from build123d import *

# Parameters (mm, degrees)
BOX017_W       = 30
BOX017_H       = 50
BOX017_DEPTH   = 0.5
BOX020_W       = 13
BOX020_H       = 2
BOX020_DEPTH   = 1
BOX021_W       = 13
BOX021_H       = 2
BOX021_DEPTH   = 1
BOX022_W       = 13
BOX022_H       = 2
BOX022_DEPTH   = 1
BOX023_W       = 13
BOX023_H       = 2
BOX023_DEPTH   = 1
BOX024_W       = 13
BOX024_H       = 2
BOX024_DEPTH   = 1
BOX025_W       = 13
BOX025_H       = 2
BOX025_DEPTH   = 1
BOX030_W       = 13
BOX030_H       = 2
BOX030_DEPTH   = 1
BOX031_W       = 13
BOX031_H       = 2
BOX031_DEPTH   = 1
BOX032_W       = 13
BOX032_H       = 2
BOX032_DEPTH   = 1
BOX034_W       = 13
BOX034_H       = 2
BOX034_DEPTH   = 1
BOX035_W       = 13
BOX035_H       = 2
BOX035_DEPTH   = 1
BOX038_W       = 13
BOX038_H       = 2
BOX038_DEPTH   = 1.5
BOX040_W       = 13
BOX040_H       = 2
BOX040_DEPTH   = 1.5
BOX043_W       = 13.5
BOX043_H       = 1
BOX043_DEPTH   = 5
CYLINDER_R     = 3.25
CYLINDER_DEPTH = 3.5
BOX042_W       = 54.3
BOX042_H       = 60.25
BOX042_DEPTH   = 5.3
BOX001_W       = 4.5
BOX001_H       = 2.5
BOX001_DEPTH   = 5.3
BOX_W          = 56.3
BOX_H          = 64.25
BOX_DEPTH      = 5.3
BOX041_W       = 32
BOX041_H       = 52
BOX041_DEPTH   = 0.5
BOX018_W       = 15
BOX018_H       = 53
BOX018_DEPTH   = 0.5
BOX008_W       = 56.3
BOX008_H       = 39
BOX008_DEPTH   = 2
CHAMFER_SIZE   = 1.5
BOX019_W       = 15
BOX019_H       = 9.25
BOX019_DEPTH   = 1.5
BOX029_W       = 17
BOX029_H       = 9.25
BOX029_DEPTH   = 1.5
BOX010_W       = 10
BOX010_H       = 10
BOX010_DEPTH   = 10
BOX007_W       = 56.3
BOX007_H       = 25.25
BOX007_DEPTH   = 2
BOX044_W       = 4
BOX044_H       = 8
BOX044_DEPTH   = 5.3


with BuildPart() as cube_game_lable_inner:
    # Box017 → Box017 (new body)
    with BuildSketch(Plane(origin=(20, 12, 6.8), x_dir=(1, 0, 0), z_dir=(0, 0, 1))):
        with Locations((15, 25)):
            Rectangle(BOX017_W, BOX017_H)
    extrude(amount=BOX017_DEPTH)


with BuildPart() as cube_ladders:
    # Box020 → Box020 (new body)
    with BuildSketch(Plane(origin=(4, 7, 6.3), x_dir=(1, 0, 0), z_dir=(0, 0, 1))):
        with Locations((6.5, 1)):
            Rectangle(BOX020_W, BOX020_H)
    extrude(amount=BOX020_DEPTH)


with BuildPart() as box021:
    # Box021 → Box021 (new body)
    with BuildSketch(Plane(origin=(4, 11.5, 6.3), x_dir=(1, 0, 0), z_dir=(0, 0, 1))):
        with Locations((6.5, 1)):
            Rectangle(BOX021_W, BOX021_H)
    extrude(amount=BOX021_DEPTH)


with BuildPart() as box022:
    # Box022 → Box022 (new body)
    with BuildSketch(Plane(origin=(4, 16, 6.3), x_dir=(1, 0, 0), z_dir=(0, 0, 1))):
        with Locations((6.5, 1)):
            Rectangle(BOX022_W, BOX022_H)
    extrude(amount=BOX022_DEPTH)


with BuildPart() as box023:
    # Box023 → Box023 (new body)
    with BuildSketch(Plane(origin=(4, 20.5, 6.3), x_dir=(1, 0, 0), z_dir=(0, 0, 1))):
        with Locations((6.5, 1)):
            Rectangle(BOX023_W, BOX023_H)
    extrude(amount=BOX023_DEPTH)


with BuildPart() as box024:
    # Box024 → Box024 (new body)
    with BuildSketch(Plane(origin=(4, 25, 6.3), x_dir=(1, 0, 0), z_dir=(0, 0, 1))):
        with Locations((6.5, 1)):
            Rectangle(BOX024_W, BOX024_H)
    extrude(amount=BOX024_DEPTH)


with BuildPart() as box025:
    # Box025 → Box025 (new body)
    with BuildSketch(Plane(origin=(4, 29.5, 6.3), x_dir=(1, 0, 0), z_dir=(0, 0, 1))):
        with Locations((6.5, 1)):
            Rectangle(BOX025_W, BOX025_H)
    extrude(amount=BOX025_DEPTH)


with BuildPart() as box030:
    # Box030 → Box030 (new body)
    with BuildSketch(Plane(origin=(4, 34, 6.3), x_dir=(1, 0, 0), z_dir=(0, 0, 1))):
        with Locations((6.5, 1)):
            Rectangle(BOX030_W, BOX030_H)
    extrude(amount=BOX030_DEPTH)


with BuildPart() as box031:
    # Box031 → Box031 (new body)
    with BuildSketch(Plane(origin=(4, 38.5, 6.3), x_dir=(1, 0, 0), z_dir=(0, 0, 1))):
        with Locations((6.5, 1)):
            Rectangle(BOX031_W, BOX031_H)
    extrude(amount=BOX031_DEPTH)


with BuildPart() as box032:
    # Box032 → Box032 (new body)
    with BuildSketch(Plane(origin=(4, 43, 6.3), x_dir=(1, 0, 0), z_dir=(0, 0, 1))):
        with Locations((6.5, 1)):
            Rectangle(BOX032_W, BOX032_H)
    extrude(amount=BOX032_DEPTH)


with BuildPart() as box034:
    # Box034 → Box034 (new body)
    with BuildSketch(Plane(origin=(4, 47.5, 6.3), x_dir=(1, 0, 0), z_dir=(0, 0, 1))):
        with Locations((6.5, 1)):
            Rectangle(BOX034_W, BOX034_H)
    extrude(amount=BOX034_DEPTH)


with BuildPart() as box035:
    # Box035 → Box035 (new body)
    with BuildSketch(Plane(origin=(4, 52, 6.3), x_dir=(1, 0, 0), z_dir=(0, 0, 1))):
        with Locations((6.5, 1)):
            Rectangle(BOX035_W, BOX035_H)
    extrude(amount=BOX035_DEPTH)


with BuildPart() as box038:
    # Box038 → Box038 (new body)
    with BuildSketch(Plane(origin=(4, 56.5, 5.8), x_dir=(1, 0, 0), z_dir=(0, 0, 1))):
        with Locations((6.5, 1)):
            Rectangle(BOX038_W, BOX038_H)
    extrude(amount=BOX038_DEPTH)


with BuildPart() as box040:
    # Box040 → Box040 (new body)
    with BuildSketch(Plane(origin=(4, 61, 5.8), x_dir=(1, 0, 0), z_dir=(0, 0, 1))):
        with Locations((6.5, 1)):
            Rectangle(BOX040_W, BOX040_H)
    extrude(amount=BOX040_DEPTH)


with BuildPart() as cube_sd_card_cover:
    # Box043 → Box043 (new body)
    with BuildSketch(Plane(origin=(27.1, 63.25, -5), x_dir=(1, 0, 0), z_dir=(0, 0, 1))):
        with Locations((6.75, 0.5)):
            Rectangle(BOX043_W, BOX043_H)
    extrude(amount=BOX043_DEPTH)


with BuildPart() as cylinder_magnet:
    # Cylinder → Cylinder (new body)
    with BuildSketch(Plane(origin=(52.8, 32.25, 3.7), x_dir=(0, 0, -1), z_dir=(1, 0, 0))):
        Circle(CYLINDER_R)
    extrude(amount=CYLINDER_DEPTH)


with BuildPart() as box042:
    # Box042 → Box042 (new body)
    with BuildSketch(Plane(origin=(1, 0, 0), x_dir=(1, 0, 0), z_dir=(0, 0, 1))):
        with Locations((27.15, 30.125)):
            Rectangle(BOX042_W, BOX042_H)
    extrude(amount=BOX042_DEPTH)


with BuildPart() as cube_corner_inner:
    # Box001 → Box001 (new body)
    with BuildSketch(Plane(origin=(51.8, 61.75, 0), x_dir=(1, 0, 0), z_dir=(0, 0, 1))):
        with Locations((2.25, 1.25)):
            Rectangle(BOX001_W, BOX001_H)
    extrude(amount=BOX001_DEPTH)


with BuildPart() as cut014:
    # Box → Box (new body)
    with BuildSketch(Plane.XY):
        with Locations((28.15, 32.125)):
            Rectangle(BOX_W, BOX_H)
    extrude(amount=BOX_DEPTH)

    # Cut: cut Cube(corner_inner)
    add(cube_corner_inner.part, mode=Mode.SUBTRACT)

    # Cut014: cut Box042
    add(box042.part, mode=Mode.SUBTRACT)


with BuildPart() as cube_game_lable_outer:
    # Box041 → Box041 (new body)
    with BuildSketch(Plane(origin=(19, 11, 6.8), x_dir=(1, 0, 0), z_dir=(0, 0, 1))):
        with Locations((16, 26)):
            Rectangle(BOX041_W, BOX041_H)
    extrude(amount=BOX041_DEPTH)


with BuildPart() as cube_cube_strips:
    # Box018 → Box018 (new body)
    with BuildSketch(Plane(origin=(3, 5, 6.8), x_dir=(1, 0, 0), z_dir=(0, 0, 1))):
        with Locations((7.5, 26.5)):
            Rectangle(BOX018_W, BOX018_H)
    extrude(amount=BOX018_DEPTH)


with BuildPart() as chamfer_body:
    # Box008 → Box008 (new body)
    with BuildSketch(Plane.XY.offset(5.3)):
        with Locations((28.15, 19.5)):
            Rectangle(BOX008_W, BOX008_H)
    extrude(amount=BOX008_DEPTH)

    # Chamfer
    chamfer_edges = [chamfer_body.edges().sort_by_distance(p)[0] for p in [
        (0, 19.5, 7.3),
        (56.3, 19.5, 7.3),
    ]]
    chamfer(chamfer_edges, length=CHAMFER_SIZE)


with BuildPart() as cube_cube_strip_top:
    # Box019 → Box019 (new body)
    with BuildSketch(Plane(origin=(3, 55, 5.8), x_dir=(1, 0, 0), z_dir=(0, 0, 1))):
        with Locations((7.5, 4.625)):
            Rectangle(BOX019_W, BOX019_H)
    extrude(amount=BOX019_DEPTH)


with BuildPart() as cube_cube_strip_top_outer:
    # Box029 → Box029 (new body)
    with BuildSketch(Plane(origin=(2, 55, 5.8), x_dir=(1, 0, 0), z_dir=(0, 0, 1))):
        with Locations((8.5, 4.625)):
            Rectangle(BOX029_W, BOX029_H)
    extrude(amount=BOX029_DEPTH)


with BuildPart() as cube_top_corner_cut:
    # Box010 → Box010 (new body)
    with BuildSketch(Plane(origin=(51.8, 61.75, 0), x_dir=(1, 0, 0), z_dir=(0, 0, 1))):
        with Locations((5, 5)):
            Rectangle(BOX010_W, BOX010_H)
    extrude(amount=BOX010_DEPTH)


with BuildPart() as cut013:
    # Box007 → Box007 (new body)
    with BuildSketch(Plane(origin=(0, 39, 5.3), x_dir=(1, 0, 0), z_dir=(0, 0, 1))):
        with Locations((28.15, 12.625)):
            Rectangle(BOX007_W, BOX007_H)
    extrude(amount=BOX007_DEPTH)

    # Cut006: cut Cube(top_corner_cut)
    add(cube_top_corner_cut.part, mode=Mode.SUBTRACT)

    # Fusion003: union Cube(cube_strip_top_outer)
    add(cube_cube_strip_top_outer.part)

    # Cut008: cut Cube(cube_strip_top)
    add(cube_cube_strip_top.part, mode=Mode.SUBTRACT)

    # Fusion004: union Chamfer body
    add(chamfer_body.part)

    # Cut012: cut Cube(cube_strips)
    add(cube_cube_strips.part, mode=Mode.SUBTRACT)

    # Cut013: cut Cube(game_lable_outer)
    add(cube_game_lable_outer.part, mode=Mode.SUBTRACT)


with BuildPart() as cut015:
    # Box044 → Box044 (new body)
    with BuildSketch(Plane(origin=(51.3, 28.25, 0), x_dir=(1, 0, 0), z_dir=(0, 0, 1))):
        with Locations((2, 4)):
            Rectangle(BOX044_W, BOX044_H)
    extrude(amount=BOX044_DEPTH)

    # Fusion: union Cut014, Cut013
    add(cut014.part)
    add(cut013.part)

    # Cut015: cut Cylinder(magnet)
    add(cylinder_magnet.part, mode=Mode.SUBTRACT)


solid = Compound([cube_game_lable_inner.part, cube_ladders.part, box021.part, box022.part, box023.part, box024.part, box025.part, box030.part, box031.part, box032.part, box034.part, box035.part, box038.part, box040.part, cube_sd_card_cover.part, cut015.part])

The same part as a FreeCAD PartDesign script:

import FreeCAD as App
import Part
import Sketcher
from FreeCAD import Vector


def edges_at(feature, points):
    """Names of the edges that pass closest to the given points."""
    edges = feature.Shape.Edges
    near = lambda p: min(range(len(edges)), key=lambda i: edges[i].distToShape(Part.Vertex(*p))[0])
    return sorted({f"Edge{near(p) + 1}" for p in points})

doc = App.newDocument("Part")
body = doc.addObject("PartDesign::Body", "Body")

sketch1 = doc.addObject("Sketcher::SketchObject", "Sketch")
body.addObject(sketch1)
sketch1.AttachmentSupport = (doc.XY_Plane, [""])
sketch1.MapMode = "FlatFace"
sketch1.AttachmentOffset = App.Placement(Vector(0, 0, 6.8), App.Rotation())
sketch1.addGeometry([
    Part.LineSegment(Vector(20, 62, 0), Vector(20, 12, 0)),
    Part.LineSegment(Vector(20, 12, 0), Vector(50, 12, 0)),
    Part.LineSegment(Vector(50, 12, 0), Vector(50, 62, 0)),
    Part.LineSegment(Vector(50, 62, 0), Vector(20, 62, 0)),
], False)
sketch1.addConstraint([
    Sketcher.Constraint("Coincident", 0, 2, 1, 1),
    Sketcher.Constraint("Coincident", 1, 2, 2, 1),
    Sketcher.Constraint("Coincident", 2, 2, 3, 1),
    Sketcher.Constraint("Coincident", 3, 2, 0, 1),
    Sketcher.Constraint("Vertical", 0),
    Sketcher.Constraint("Horizontal", 1),
    Sketcher.Constraint("Vertical", 2),
    Sketcher.Constraint("Horizontal", 3),
    Sketcher.Constraint("DistanceX", 1, 1, 1, 2, 30.0),
    Sketcher.Constraint("DistanceY", 0, 2, 0, 1, 50.0),
    Sketcher.Constraint("DistanceX", -1, 1, 0, 2, 20.0),
    Sketcher.Constraint("DistanceY", -1, 1, 0, 2, 12.0),
])
pad1 = doc.addObject("PartDesign::Pad", "Pad")
body.addObject(pad1)
pad1.Profile = sketch1
pad1.Length = 0.5
body2 = doc.addObject("PartDesign::Body", "Body001")

sketch2 = doc.addObject("Sketcher::SketchObject", "Sketch001")
body2.addObject(sketch2)
sketch2.AttachmentSupport = (doc.getObject("XY_Plane001"), [""])
sketch2.MapMode = "FlatFace"
sketch2.AttachmentOffset = App.Placement(Vector(0, 0, 6.3), App.Rotation())
sketch2.addGeometry([
    Part.LineSegment(Vector(4, 9, 0), Vector(4, 7, 0)),
    Part.LineSegment(Vector(4, 7, 0), Vector(17, 7, 0)),
    Part.LineSegment(Vector(17, 7, 0), Vector(17, 9, 0)),
    Part.LineSegment(Vector(17, 9, 0), Vector(4, 9, 0)),
], False)
sketch2.addConstraint([
    Sketcher.Constraint("Coincident", 0, 2, 1, 1),
    Sketcher.Constraint("Coincident", 1, 2, 2, 1),
    Sketcher.Constraint("Coincident", 2, 2, 3, 1),
    Sketcher.Constraint("Coincident", 3, 2, 0, 1),
    Sketcher.Constraint("Vertical", 0),
    Sketcher.Constraint("Horizontal", 1),
    Sketcher.Constraint("Vertical", 2),
    Sketcher.Constraint("Horizontal", 3),
    Sketcher.Constraint("DistanceX", 1, 1, 1, 2, 13.0),
    Sketcher.Constraint("DistanceY", 0, 2, 0, 1, 2.0),
    Sketcher.Constraint("DistanceX", -1, 1, 0, 2, 4.0),
    Sketcher.Constraint("DistanceY", -1, 1, 0, 2, 7.0),
])
pad2 = doc.addObject("PartDesign::Pad", "Pad001")
body2.addObject(pad2)
pad2.Profile = sketch2
pad2.Length = 1
body3 = doc.addObject("PartDesign::Body", "Body002")

sketch3 = doc.addObject("Sketcher::SketchObject", "Sketch002")
body3.addObject(sketch3)
sketch3.AttachmentSupport = (doc.getObject("XY_Plane002"), [""])
sketch3.MapMode = "FlatFace"
sketch3.AttachmentOffset = App.Placement(Vector(0, 0, 6.3), App.Rotation())
sketch3.addGeometry([
    Part.LineSegment(Vector(4, 13.5, 0), Vector(4, 11.5, 0)),
    Part.LineSegment(Vector(4, 11.5, 0), Vector(17, 11.5, 0)),
    Part.LineSegment(Vector(17, 11.5, 0), Vector(17, 13.5, 0)),
    Part.LineSegment(Vector(17, 13.5, 0), Vector(4, 13.5, 0)),
], False)
sketch3.addConstraint([
    Sketcher.Constraint("Coincident", 0, 2, 1, 1),
    Sketcher.Constraint("Coincident", 1, 2, 2, 1),
    Sketcher.Constraint("Coincident", 2, 2, 3, 1),
    Sketcher.Constraint("Coincident", 3, 2, 0, 1),
    Sketcher.Constraint("Vertical", 0),
    Sketcher.Constraint("Horizontal", 1),
    Sketcher.Constraint("Vertical", 2),
    Sketcher.Constraint("Horizontal", 3),
    Sketcher.Constraint("DistanceX", 1, 1, 1, 2, 13.0),
    Sketcher.Constraint("DistanceY", 0, 2, 0, 1, 2.0),
    Sketcher.Constraint("DistanceX", -1, 1, 0, 2, 4.0),
    Sketcher.Constraint("DistanceY", -1, 1, 0, 2, 11.5),
])
pad3 = doc.addObject("PartDesign::Pad", "Pad002")
body3.addObject(pad3)
pad3.Profile = sketch3
pad3.Length = 1
body4 = doc.addObject("PartDesign::Body", "Body003")

sketch4 = doc.addObject("Sketcher::SketchObject", "Sketch003")
body4.addObject(sketch4)
sketch4.AttachmentSupport = (doc.getObject("XY_Plane003"), [""])
sketch4.MapMode = "FlatFace"
sketch4.AttachmentOffset = App.Placement(Vector(0, 0, 6.3), App.Rotation())
sketch4.addGeometry([
    Part.LineSegment(Vector(4, 18, 0), Vector(4, 16, 0)),
    Part.LineSegment(Vector(4, 16, 0), Vector(17, 16, 0)),
    Part.LineSegment(Vector(17, 16, 0), Vector(17, 18, 0)),
    Part.LineSegment(Vector(17, 18, 0), Vector(4, 18, 0)),
], False)
sketch4.addConstraint([
    Sketcher.Constraint("Coincident", 0, 2, 1, 1),
    Sketcher.Constraint("Coincident", 1, 2, 2, 1),
    Sketcher.Constraint("Coincident", 2, 2, 3, 1),
    Sketcher.Constraint("Coincident", 3, 2, 0, 1),
    Sketcher.Constraint("Vertical", 0),
    Sketcher.Constraint("Horizontal", 1),
    Sketcher.Constraint("Vertical", 2),
    Sketcher.Constraint("Horizontal", 3),
    Sketcher.Constraint("DistanceX", 1, 1, 1, 2, 13.0),
    Sketcher.Constraint("DistanceY", 0, 2, 0, 1, 2.0),
    Sketcher.Constraint("DistanceX", -1, 1, 0, 2, 4.0),
    Sketcher.Constraint("DistanceY", -1, 1, 0, 2, 16.0),
])
pad4 = doc.addObject("PartDesign::Pad", "Pad003")
body4.addObject(pad4)
pad4.Profile = sketch4
pad4.Length = 1
body5 = doc.addObject("PartDesign::Body", "Body004")

sketch5 = doc.addObject("Sketcher::SketchObject", "Sketch004")
body5.addObject(sketch5)
sketch5.AttachmentSupport = (doc.getObject("XY_Plane004"), [""])
sketch5.MapMode = "FlatFace"
sketch5.AttachmentOffset = App.Placement(Vector(0, 0, 6.3), App.Rotation())
sketch5.addGeometry([
    Part.LineSegment(Vector(4, 22.5, 0), Vector(4, 20.5, 0)),
    Part.LineSegment(Vector(4, 20.5, 0), Vector(17, 20.5, 0)),
    Part.LineSegment(Vector(17, 20.5, 0), Vector(17, 22.5, 0)),
    Part.LineSegment(Vector(17, 22.5, 0), Vector(4, 22.5, 0)),
], False)
sketch5.addConstraint([
    Sketcher.Constraint("Coincident", 0, 2, 1, 1),
    Sketcher.Constraint("Coincident", 1, 2, 2, 1),
    Sketcher.Constraint("Coincident", 2, 2, 3, 1),
    Sketcher.Constraint("Coincident", 3, 2, 0, 1),
    Sketcher.Constraint("Vertical", 0),
    Sketcher.Constraint("Horizontal", 1),
    Sketcher.Constraint("Vertical", 2),
    Sketcher.Constraint("Horizontal", 3),
    Sketcher.Constraint("DistanceX", 1, 1, 1, 2, 13.0),
    Sketcher.Constraint("DistanceY", 0, 2, 0, 1, 2.0),
    Sketcher.Constraint("DistanceX", -1, 1, 0, 2, 4.0),
    Sketcher.Constraint("DistanceY", -1, 1, 0, 2, 20.5),
])
pad5 = doc.addObject("PartDesign::Pad", "Pad004")
body5.addObject(pad5)
pad5.Profile = sketch5
pad5.Length = 1
body6 = doc.addObject("PartDesign::Body", "Body005")

sketch6 = doc.addObject("Sketcher::SketchObject", "Sketch005")
body6.addObject(sketch6)
sketch6.AttachmentSupport = (doc.getObject("XY_Plane005"), [""])
sketch6.MapMode = "FlatFace"
sketch6.AttachmentOffset = App.Placement(Vector(0, 0, 6.3), App.Rotation())
sketch6.addGeometry([
    Part.LineSegment(Vector(4, 27, 0), Vector(4, 25, 0)),
    Part.LineSegment(Vector(4, 25, 0), Vector(17, 25, 0)),
    Part.LineSegment(Vector(17, 25, 0), Vector(17, 27, 0)),
    Part.LineSegment(Vector(17, 27, 0), Vector(4, 27, 0)),
], False)
sketch6.addConstraint([
    Sketcher.Constraint("Coincident", 0, 2, 1, 1),
    Sketcher.Constraint("Coincident", 1, 2, 2, 1),
    Sketcher.Constraint("Coincident", 2, 2, 3, 1),
    Sketcher.Constraint("Coincident", 3, 2, 0, 1),
    Sketcher.Constraint("Vertical", 0),
    Sketcher.Constraint("Horizontal", 1),
    Sketcher.Constraint("Vertical", 2),
    Sketcher.Constraint("Horizontal", 3),
    Sketcher.Constraint("DistanceX", 1, 1, 1, 2, 13.0),
    Sketcher.Constraint("DistanceY", 0, 2, 0, 1, 2.0),
    Sketcher.Constraint("DistanceX", -1, 1, 0, 2, 4.0),
    Sketcher.Constraint("DistanceY", -1, 1, 0, 2, 25.0),
])
pad6 = doc.addObject("PartDesign::Pad", "Pad005")
body6.addObject(pad6)
pad6.Profile = sketch6
pad6.Length = 1
body7 = doc.addObject("PartDesign::Body", "Body006")

sketch7 = doc.addObject("Sketcher::SketchObject", "Sketch006")
body7.addObject(sketch7)
sketch7.AttachmentSupport = (doc.getObject("XY_Plane006"), [""])
sketch7.MapMode = "FlatFace"
sketch7.AttachmentOffset = App.Placement(Vector(0, 0, 6.3), App.Rotation())
sketch7.addGeometry([
    Part.LineSegment(Vector(4, 31.5, 0), Vector(4, 29.5, 0)),
    Part.LineSegment(Vector(4, 29.5, 0), Vector(17, 29.5, 0)),
    Part.LineSegment(Vector(17, 29.5, 0), Vector(17, 31.5, 0)),
    Part.LineSegment(Vector(17, 31.5, 0), Vector(4, 31.5, 0)),
], False)
sketch7.addConstraint([
    Sketcher.Constraint("Coincident", 0, 2, 1, 1),
    Sketcher.Constraint("Coincident", 1, 2, 2, 1),
    Sketcher.Constraint("Coincident", 2, 2, 3, 1),
    Sketcher.Constraint("Coincident", 3, 2, 0, 1),
    Sketcher.Constraint("Vertical", 0),
    Sketcher.Constraint("Horizontal", 1),
    Sketcher.Constraint("Vertical", 2),
    Sketcher.Constraint("Horizontal", 3),
    Sketcher.Constraint("DistanceX", 1, 1, 1, 2, 13.0),
    Sketcher.Constraint("DistanceY", 0, 2, 0, 1, 2.0),
    Sketcher.Constraint("DistanceX", -1, 1, 0, 2, 4.0),
    Sketcher.Constraint("DistanceY", -1, 1, 0, 2, 29.5),
])
pad7 = doc.addObject("PartDesign::Pad", "Pad006")
body7.addObject(pad7)
pad7.Profile = sketch7
pad7.Length = 1
body8 = doc.addObject("PartDesign::Body", "Body007")

sketch8 = doc.addObject("Sketcher::SketchObject", "Sketch007")
body8.addObject(sketch8)
sketch8.AttachmentSupport = (doc.getObject("XY_Plane007"), [""])
sketch8.MapMode = "FlatFace"
sketch8.AttachmentOffset = App.Placement(Vector(0, 0, 6.3), App.Rotation())
sketch8.addGeometry([
    Part.LineSegment(Vector(4, 36, 0), Vector(4, 34, 0)),
    Part.LineSegment(Vector(4, 34, 0), Vector(17, 34, 0)),
    Part.LineSegment(Vector(17, 34, 0), Vector(17, 36, 0)),
    Part.LineSegment(Vector(17, 36, 0), Vector(4, 36, 0)),
], False)
sketch8.addConstraint([
    Sketcher.Constraint("Coincident", 0, 2, 1, 1),
    Sketcher.Constraint("Coincident", 1, 2, 2, 1),
    Sketcher.Constraint("Coincident", 2, 2, 3, 1),
    Sketcher.Constraint("Coincident", 3, 2, 0, 1),
    Sketcher.Constraint("Vertical", 0),
    Sketcher.Constraint("Horizontal", 1),
    Sketcher.Constraint("Vertical", 2),
    Sketcher.Constraint("Horizontal", 3),
    Sketcher.Constraint("DistanceX", 1, 1, 1, 2, 13.0),
    Sketcher.Constraint("DistanceY", 0, 2, 0, 1, 2.0),
    Sketcher.Constraint("DistanceX", -1, 1, 0, 2, 4.0),
    Sketcher.Constraint("DistanceY", -1, 1, 0, 2, 34.0),
])
pad8 = doc.addObject("PartDesign::Pad", "Pad007")
body8.addObject(pad8)
pad8.Profile = sketch8
pad8.Length = 1
body9 = doc.addObject("PartDesign::Body", "Body008")

sketch9 = doc.addObject("Sketcher::SketchObject", "Sketch008")
body9.addObject(sketch9)
sketch9.AttachmentSupport = (doc.getObject("XY_Plane008"), [""])
sketch9.MapMode = "FlatFace"
sketch9.AttachmentOffset = App.Placement(Vector(0, 0, 6.3), App.Rotation())
sketch9.addGeometry([
    Part.LineSegment(Vector(4, 40.5, 0), Vector(4, 38.5, 0)),
    Part.LineSegment(Vector(4, 38.5, 0), Vector(17, 38.5, 0)),
    Part.LineSegment(Vector(17, 38.5, 0), Vector(17, 40.5, 0)),
    Part.LineSegment(Vector(17, 40.5, 0), Vector(4, 40.5, 0)),
], False)
sketch9.addConstraint([
    Sketcher.Constraint("Coincident", 0, 2, 1, 1),
    Sketcher.Constraint("Coincident", 1, 2, 2, 1),
    Sketcher.Constraint("Coincident", 2, 2, 3, 1),
    Sketcher.Constraint("Coincident", 3, 2, 0, 1),
    Sketcher.Constraint("Vertical", 0),
    Sketcher.Constraint("Horizontal", 1),
    Sketcher.Constraint("Vertical", 2),
    Sketcher.Constraint("Horizontal", 3),
    Sketcher.Constraint("DistanceX", 1, 1, 1, 2, 13.0),
    Sketcher.Constraint("DistanceY", 0, 2, 0, 1, 2.0),
    Sketcher.Constraint("DistanceX", -1, 1, 0, 2, 4.0),
    Sketcher.Constraint("DistanceY", -1, 1, 0, 2, 38.5),
])
pad9 = doc.addObject("PartDesign::Pad", "Pad008")
body9.addObject(pad9)
pad9.Profile = sketch9
pad9.Length = 1
body10 = doc.addObject("PartDesign::Body", "Body009")

sketch10 = doc.addObject("Sketcher::SketchObject", "Sketch009")
body10.addObject(sketch10)
sketch10.AttachmentSupport = (doc.getObject("XY_Plane009"), [""])
sketch10.MapMode = "FlatFace"
sketch10.AttachmentOffset = App.Placement(Vector(0, 0, 6.3), App.Rotation())
sketch10.addGeometry([
    Part.LineSegment(Vector(4, 45, 0), Vector(4, 43, 0)),
    Part.LineSegment(Vector(4, 43, 0), Vector(17, 43, 0)),
    Part.LineSegment(Vector(17, 43, 0), Vector(17, 45, 0)),
    Part.LineSegment(Vector(17, 45, 0), Vector(4, 45, 0)),
], False)
sketch10.addConstraint([
    Sketcher.Constraint("Coincident", 0, 2, 1, 1),
    Sketcher.Constraint("Coincident", 1, 2, 2, 1),
    Sketcher.Constraint("Coincident", 2, 2, 3, 1),
    Sketcher.Constraint("Coincident", 3, 2, 0, 1),
    Sketcher.Constraint("Vertical", 0),
    Sketcher.Constraint("Horizontal", 1),
    Sketcher.Constraint("Vertical", 2),
    Sketcher.Constraint("Horizontal", 3),
    Sketcher.Constraint("DistanceX", 1, 1, 1, 2, 13.0),
    Sketcher.Constraint("DistanceY", 0, 2, 0, 1, 2.0),
    Sketcher.Constraint("DistanceX", -1, 1, 0, 2, 4.0),
    Sketcher.Constraint("DistanceY", -1, 1, 0, 2, 43.0),
])
pad10 = doc.addObject("PartDesign::Pad", "Pad009")
body10.addObject(pad10)
pad10.Profile = sketch10
pad10.Length = 1
body11 = doc.addObject("PartDesign::Body", "Body010")

sketch11 = doc.addObject("Sketcher::SketchObject", "Sketch010")
body11.addObject(sketch11)
sketch11.AttachmentSupport = (doc.getObject("XY_Plane010"), [""])
sketch11.MapMode = "FlatFace"
sketch11.AttachmentOffset = App.Placement(Vector(0, 0, 6.3), App.Rotation())
sketch11.addGeometry([
    Part.LineSegment(Vector(4, 49.5, 0), Vector(4, 47.5, 0)),
    Part.LineSegment(Vector(4, 47.5, 0), Vector(17, 47.5, 0)),
    Part.LineSegment(Vector(17, 47.5, 0), Vector(17, 49.5, 0)),
    Part.LineSegment(Vector(17, 49.5, 0), Vector(4, 49.5, 0)),
], False)
sketch11.addConstraint([
    Sketcher.Constraint("Coincident", 0, 2, 1, 1),
    Sketcher.Constraint("Coincident", 1, 2, 2, 1),
    Sketcher.Constraint("Coincident", 2, 2, 3, 1),
    Sketcher.Constraint("Coincident", 3, 2, 0, 1),
    Sketcher.Constraint("Vertical", 0),
    Sketcher.Constraint("Horizontal", 1),
    Sketcher.Constraint("Vertical", 2),
    Sketcher.Constraint("Horizontal", 3),
    Sketcher.Constraint("DistanceX", 1, 1, 1, 2, 13.0),
    Sketcher.Constraint("DistanceY", 0, 2, 0, 1, 2.0),
    Sketcher.Constraint("DistanceX", -1, 1, 0, 2, 4.0),
    Sketcher.Constraint("DistanceY", -1, 1, 0, 2, 47.5),
])
pad11 = doc.addObject("PartDesign::Pad", "Pad010")
body11.addObject(pad11)
pad11.Profile = sketch11
pad11.Length = 1
body12 = doc.addObject("PartDesign::Body", "Body011")

sketch12 = doc.addObject("Sketcher::SketchObject", "Sketch011")
body12.addObject(sketch12)
sketch12.AttachmentSupport = (doc.getObject("XY_Plane011"), [""])
sketch12.MapMode = "FlatFace"
sketch12.AttachmentOffset = App.Placement(Vector(0, 0, 6.3), App.Rotation())
sketch12.addGeometry([
    Part.LineSegment(Vector(4, 54, 0), Vector(4, 52, 0)),
    Part.LineSegment(Vector(4, 52, 0), Vector(17, 52, 0)),
    Part.LineSegment(Vector(17, 52, 0), Vector(17, 54, 0)),
    Part.LineSegment(Vector(17, 54, 0), Vector(4, 54, 0)),
], False)
sketch12.addConstraint([
    Sketcher.Constraint("Coincident", 0, 2, 1, 1),
    Sketcher.Constraint("Coincident", 1, 2, 2, 1),
    Sketcher.Constraint("Coincident", 2, 2, 3, 1),
    Sketcher.Constraint("Coincident", 3, 2, 0, 1),
    Sketcher.Constraint("Vertical", 0),
    Sketcher.Constraint("Horizontal", 1),
    Sketcher.Constraint("Vertical", 2),
    Sketcher.Constraint("Horizontal", 3),
    Sketcher.Constraint("DistanceX", 1, 1, 1, 2, 13.0),
    Sketcher.Constraint("DistanceY", 0, 2, 0, 1, 2.0),
    Sketcher.Constraint("DistanceX", -1, 1, 0, 2, 4.0),
    Sketcher.Constraint("DistanceY", -1, 1, 0, 2, 52.0),
])
pad12 = doc.addObject("PartDesign::Pad", "Pad011")
body12.addObject(pad12)
pad12.Profile = sketch12
pad12.Length = 1
body13 = doc.addObject("PartDesign::Body", "Body012")

sketch13 = doc.addObject("Sketcher::SketchObject", "Sketch012")
body13.addObject(sketch13)
sketch13.AttachmentSupport = (doc.getObject("XY_Plane012"), [""])
sketch13.MapMode = "FlatFace"
sketch13.AttachmentOffset = App.Placement(Vector(0, 0, 5.8), App.Rotation())
sketch13.addGeometry([
    Part.LineSegment(Vector(4, 58.5, 0), Vector(4, 56.5, 0)),
    Part.LineSegment(Vector(4, 56.5, 0), Vector(17, 56.5, 0)),
    Part.LineSegment(Vector(17, 56.5, 0), Vector(17, 58.5, 0)),
    Part.LineSegment(Vector(17, 58.5, 0), Vector(4, 58.5, 0)),
], False)
sketch13.addConstraint([
    Sketcher.Constraint("Coincident", 0, 2, 1, 1),
    Sketcher.Constraint("Coincident", 1, 2, 2, 1),
    Sketcher.Constraint("Coincident", 2, 2, 3, 1),
    Sketcher.Constraint("Coincident", 3, 2, 0, 1),
    Sketcher.Constraint("Vertical", 0),
    Sketcher.Constraint("Horizontal", 1),
    Sketcher.Constraint("Vertical", 2),
    Sketcher.Constraint("Horizontal", 3),
    Sketcher.Constraint("DistanceX", 1, 1, 1, 2, 13.0),
    Sketcher.Constraint("DistanceY", 0, 2, 0, 1, 2.0),
    Sketcher.Constraint("DistanceX", -1, 1, 0, 2, 4.0),
    Sketcher.Constraint("DistanceY", -1, 1, 0, 2, 56.5),
])
pad13 = doc.addObject("PartDesign::Pad", "Pad012")
body13.addObject(pad13)
pad13.Profile = sketch13
pad13.Length = 1.5
body14 = doc.addObject("PartDesign::Body", "Body013")

sketch14 = doc.addObject("Sketcher::SketchObject", "Sketch013")
body14.addObject(sketch14)
sketch14.AttachmentSupport = (doc.getObject("XY_Plane013"), [""])
sketch14.MapMode = "FlatFace"
sketch14.AttachmentOffset = App.Placement(Vector(0, 0, 5.8), App.Rotation())
sketch14.addGeometry([
    Part.LineSegment(Vector(4, 63, 0), Vector(4, 61, 0)),
    Part.LineSegment(Vector(4, 61, 0), Vector(17, 61, 0)),
    Part.LineSegment(Vector(17, 61, 0), Vector(17, 63, 0)),
    Part.LineSegment(Vector(17, 63, 0), Vector(4, 63, 0)),
], False)
sketch14.addConstraint([
    Sketcher.Constraint("Coincident", 0, 2, 1, 1),
    Sketcher.Constraint("Coincident", 1, 2, 2, 1),
    Sketcher.Constraint("Coincident", 2, 2, 3, 1),
    Sketcher.Constraint("Coincident", 3, 2, 0, 1),
    Sketcher.Constraint("Vertical", 0),
    Sketcher.Constraint("Horizontal", 1),
    Sketcher.Constraint("Vertical", 2),
    Sketcher.Constraint("Horizontal", 3),
    Sketcher.Constraint("DistanceX", 1, 1, 1, 2, 13.0),
    Sketcher.Constraint("DistanceY", 0, 2, 0, 1, 2.0),
    Sketcher.Constraint("DistanceX", -1, 1, 0, 2, 4.0),
    Sketcher.Constraint("DistanceY", -1, 1, 0, 2, 61.0),
])
pad14 = doc.addObject("PartDesign::Pad", "Pad013")
body14.addObject(pad14)
pad14.Profile = sketch14
pad14.Length = 1.5
body15 = doc.addObject("PartDesign::Body", "Body014")

sketch15 = doc.addObject("Sketcher::SketchObject", "Sketch014")
body15.addObject(sketch15)
sketch15.AttachmentSupport = (doc.getObject("XY_Plane014"), [""])
sketch15.MapMode = "FlatFace"
sketch15.AttachmentOffset = App.Placement(Vector(0, 0, -5), App.Rotation())
sketch15.addGeometry([
    Part.LineSegment(Vector(27.1, 64.25, 0), Vector(27.1, 63.25, 0)),
    Part.LineSegment(Vector(27.1, 63.25, 0), Vector(40.6, 63.25, 0)),
    Part.LineSegment(Vector(40.6, 63.25, 0), Vector(40.6, 64.25, 0)),
    Part.LineSegment(Vector(40.6, 64.25, 0), Vector(27.1, 64.25, 0)),
], False)
sketch15.addConstraint([
    Sketcher.Constraint("Coincident", 0, 2, 1, 1),
    Sketcher.Constraint("Coincident", 1, 2, 2, 1),
    Sketcher.Constraint("Coincident", 2, 2, 3, 1),
    Sketcher.Constraint("Coincident", 3, 2, 0, 1),
    Sketcher.Constraint("Vertical", 0),
    Sketcher.Constraint("Horizontal", 1),
    Sketcher.Constraint("Vertical", 2),
    Sketcher.Constraint("Horizontal", 3),
    Sketcher.Constraint("DistanceY", 0, 2, 0, 1, 1.0),
    Sketcher.Constraint("DistanceX", 1, 1, 1, 2, 13.5),
    Sketcher.Constraint("DistanceX", -1, 1, 0, 2, 27.1),
    Sketcher.Constraint("DistanceY", -1, 1, 0, 2, 63.25),
])
pad15 = doc.addObject("PartDesign::Pad", "Pad014")
body15.addObject(pad15)
pad15.Profile = sketch15
pad15.Length = 5
body16 = doc.addObject("PartDesign::Body", "Body015")

sketch16 = doc.addObject("Sketcher::SketchObject", "Sketch015")
body16.addObject(sketch16)
sketch16.AttachmentSupport = (doc.getObject("YZ_Plane015"), [""])
sketch16.MapMode = "FlatFace"
sketch16.AttachmentOffset = App.Placement(Vector(0, 0, 52.8), App.Rotation())
sketch16.addGeometry(Part.Circle(Vector(32.25, 3.7, 0), Vector(0, 0, 1), 3.25), False)
sketch16.addConstraint([
    Sketcher.Constraint("Diameter", 0, 6.5),
    Sketcher.Constraint("DistanceY", -1, 1, 0, 3, 3.7),
    Sketcher.Constraint("DistanceX", -1, 1, 0, 3, 32.25),
])
pad16 = doc.addObject("PartDesign::Pad", "Pad015")
body16.addObject(pad16)
pad16.Profile = sketch16
pad16.Length = 3.5
body17 = doc.addObject("PartDesign::Body", "Body016")

sketch17 = doc.addObject("Sketcher::SketchObject", "Sketch016")
body17.addObject(sketch17)
sketch17.AttachmentSupport = (doc.getObject("XY_Plane016"), [""])
sketch17.MapMode = "FlatFace"
sketch17.addGeometry([
    Part.LineSegment(Vector(1, 60.25, 0), Vector(1, 0, 0)),
    Part.LineSegment(Vector(1, 0, 0), Vector(55.3, 0, 0)),
    Part.LineSegment(Vector(55.3, 0, 0), Vector(55.3, 60.25, 0)),
    Part.LineSegment(Vector(55.3, 60.25, 0), Vector(1, 60.25, 0)),
], False)
sketch17.addConstraint([
    Sketcher.Constraint("Coincident", 0, 2, 1, 1),
    Sketcher.Constraint("Coincident", 1, 2, 2, 1),
    Sketcher.Constraint("Coincident", 2, 2, 3, 1),
    Sketcher.Constraint("Coincident", 3, 2, 0, 1),
    Sketcher.Constraint("Vertical", 0),
    Sketcher.Constraint("Horizontal", 1),
    Sketcher.Constraint("Vertical", 2),
    Sketcher.Constraint("Horizontal", 3),
    Sketcher.Constraint("PointOnObject", 0, 2, -1),
    Sketcher.Constraint("DistanceX", 1, 1, 1, 2, 54.3),
    Sketcher.Constraint("DistanceX", -1, 1, 0, 2, 1.0),
    Sketcher.Constraint("DistanceY", 0, 2, 0, 1, 60.25),
])
pad17 = doc.addObject("PartDesign::Pad", "Pad016")
body17.addObject(pad17)
pad17.Profile = sketch17
pad17.Length = 5.3
body18 = doc.addObject("PartDesign::Body", "Body017")

sketch18 = doc.addObject("Sketcher::SketchObject", "Sketch017")
body18.addObject(sketch18)
sketch18.AttachmentSupport = (doc.getObject("XY_Plane017"), [""])
sketch18.MapMode = "FlatFace"
sketch18.addGeometry([
    Part.LineSegment(Vector(51.8, 64.25, 0), Vector(51.8, 61.75, 0)),
    Part.LineSegment(Vector(51.8, 61.75, 0), Vector(56.3, 61.75, 0)),
    Part.LineSegment(Vector(56.3, 61.75, 0), Vector(56.3, 64.25, 0)),
    Part.LineSegment(Vector(56.3, 64.25, 0), Vector(51.8, 64.25, 0)),
], False)
sketch18.addConstraint([
    Sketcher.Constraint("Coincident", 0, 2, 1, 1),
    Sketcher.Constraint("Coincident", 1, 2, 2, 1),
    Sketcher.Constraint("Coincident", 2, 2, 3, 1),
    Sketcher.Constraint("Coincident", 3, 2, 0, 1),
    Sketcher.Constraint("Vertical", 0),
    Sketcher.Constraint("Horizontal", 1),
    Sketcher.Constraint("Vertical", 2),
    Sketcher.Constraint("Horizontal", 3),
    Sketcher.Constraint("DistanceX", 1, 1, 1, 2, 4.5),
    Sketcher.Constraint("DistanceY", 0, 2, 0, 1, 2.5),
    Sketcher.Constraint("DistanceX", -1, 1, 0, 2, 51.8),
    Sketcher.Constraint("DistanceY", -1, 1, 0, 2, 61.75),
])
pad18 = doc.addObject("PartDesign::Pad", "Pad017")
body18.addObject(pad18)
pad18.Profile = sketch18
pad18.Length = 5.3
body19 = doc.addObject("PartDesign::Body", "Body018")

sketch19 = doc.addObject("Sketcher::SketchObject", "Sketch018")
body19.addObject(sketch19)
sketch19.AttachmentSupport = (doc.getObject("XY_Plane018"), [""])
sketch19.MapMode = "FlatFace"
sketch19.addGeometry([
    Part.LineSegment(Vector(0, 64.25, 0), Vector(0, 0, 0)),
    Part.LineSegment(Vector(0, 0, 0), Vector(56.3, 0, 0)),
    Part.LineSegment(Vector(56.3, 0, 0), Vector(56.3, 64.25, 0)),
    Part.LineSegment(Vector(56.3, 64.25, 0), Vector(0, 64.25, 0)),
], False)
sketch19.addConstraint([
    Sketcher.Constraint("Coincident", 0, 2, 1, 1),
    Sketcher.Constraint("Coincident", 1, 2, 2, 1),
    Sketcher.Constraint("Coincident", 2, 2, 3, 1),
    Sketcher.Constraint("Coincident", 3, 2, 0, 1),
    Sketcher.Constraint("Vertical", 0),
    Sketcher.Constraint("Horizontal", 1),
    Sketcher.Constraint("Vertical", 2),
    Sketcher.Constraint("Horizontal", 3),
    Sketcher.Constraint("Coincident", 0, 2, -1, 1),
    Sketcher.Constraint("DistanceX", 1, 1, 1, 2, 56.3),
    Sketcher.Constraint("DistanceY", 0, 2, 0, 1, 64.25),
])
pad19 = doc.addObject("PartDesign::Pad", "Pad018")
body19.addObject(pad19)
pad19.Profile = sketch19
pad19.Length = 5.3
doc.recompute()

boolean = doc.addObject("PartDesign::Boolean", "Boolean")
body19.addObject(boolean)
boolean.Type = "Cut"
boolean.addObjects([body18])
doc.recompute()

boolean2 = doc.addObject("PartDesign::Boolean", "Boolean001")
body19.addObject(boolean2)
boolean2.Type = "Cut"
boolean2.addObjects([body17])
body20 = doc.addObject("PartDesign::Body", "Body019")

sketch20 = doc.addObject("Sketcher::SketchObject", "Sketch019")
body20.addObject(sketch20)
sketch20.AttachmentSupport = (doc.getObject("XY_Plane019"), [""])
sketch20.MapMode = "FlatFace"
sketch20.AttachmentOffset = App.Placement(Vector(0, 0, 6.8), App.Rotation())
sketch20.addGeometry([
    Part.LineSegment(Vector(19, 63, 0), Vector(19, 11, 0)),
    Part.LineSegment(Vector(19, 11, 0), Vector(51, 11, 0)),
    Part.LineSegment(Vector(51, 11, 0), Vector(51, 63, 0)),
    Part.LineSegment(Vector(51, 63, 0), Vector(19, 63, 0)),
], False)
sketch20.addConstraint([
    Sketcher.Constraint("Coincident", 0, 2, 1, 1),
    Sketcher.Constraint("Coincident", 1, 2, 2, 1),
    Sketcher.Constraint("Coincident", 2, 2, 3, 1),
    Sketcher.Constraint("Coincident", 3, 2, 0, 1),
    Sketcher.Constraint("Vertical", 0),
    Sketcher.Constraint("Horizontal", 1),
    Sketcher.Constraint("Vertical", 2),
    Sketcher.Constraint("Horizontal", 3),
    Sketcher.Constraint("DistanceX", 1, 1, 1, 2, 32.0),
    Sketcher.Constraint("DistanceY", 0, 2, 0, 1, 52.0),
    Sketcher.Constraint("DistanceX", -1, 1, 0, 2, 19.0),
    Sketcher.Constraint("DistanceY", -1, 1, 0, 2, 11.0),
])
pad20 = doc.addObject("PartDesign::Pad", "Pad019")
body20.addObject(pad20)
pad20.Profile = sketch20
pad20.Length = 0.5
body21 = doc.addObject("PartDesign::Body", "Body020")

sketch21 = doc.addObject("Sketcher::SketchObject", "Sketch020")
body21.addObject(sketch21)
sketch21.AttachmentSupport = (doc.getObject("XY_Plane020"), [""])
sketch21.MapMode = "FlatFace"
sketch21.AttachmentOffset = App.Placement(Vector(0, 0, 6.8), App.Rotation())
sketch21.addGeometry([
    Part.LineSegment(Vector(3, 58, 0), Vector(3, 5, 0)),
    Part.LineSegment(Vector(3, 5, 0), Vector(18, 5, 0)),
    Part.LineSegment(Vector(18, 5, 0), Vector(18, 58, 0)),
    Part.LineSegment(Vector(18, 58, 0), Vector(3, 58, 0)),
], False)
sketch21.addConstraint([
    Sketcher.Constraint("Coincident", 0, 2, 1, 1),
    Sketcher.Constraint("Coincident", 1, 2, 2, 1),
    Sketcher.Constraint("Coincident", 2, 2, 3, 1),
    Sketcher.Constraint("Coincident", 3, 2, 0, 1),
    Sketcher.Constraint("Vertical", 0),
    Sketcher.Constraint("Horizontal", 1),
    Sketcher.Constraint("Vertical", 2),
    Sketcher.Constraint("Horizontal", 3),
    Sketcher.Constraint("DistanceX", 1, 1, 1, 2, 15.0),
    Sketcher.Constraint("DistanceY", 0, 2, 0, 1, 53.0),
    Sketcher.Constraint("DistanceX", -1, 1, 0, 2, 3.0),
    Sketcher.Constraint("DistanceY", -1, 1, 0, 2, 5.0),
])
pad21 = doc.addObject("PartDesign::Pad", "Pad020")
body21.addObject(pad21)
pad21.Profile = sketch21
pad21.Length = 0.5
body22 = doc.addObject("PartDesign::Body", "Body021")

sketch22 = doc.addObject("Sketcher::SketchObject", "Sketch021")
body22.addObject(sketch22)
sketch22.AttachmentSupport = (doc.getObject("XY_Plane021"), [""])
sketch22.MapMode = "FlatFace"
sketch22.AttachmentOffset = App.Placement(Vector(0, 0, 5.3), App.Rotation())
sketch22.addGeometry([
    Part.LineSegment(Vector(0, 39, 0), Vector(0, 0, 0)),
    Part.LineSegment(Vector(0, 0, 0), Vector(56.3, 0, 0)),
    Part.LineSegment(Vector(56.3, 0, 0), Vector(56.3, 39, 0)),
    Part.LineSegment(Vector(56.3, 39, 0), Vector(0, 39, 0)),
], False)
sketch22.addConstraint([
    Sketcher.Constraint("Coincident", 0, 2, 1, 1),
    Sketcher.Constraint("Coincident", 1, 2, 2, 1),
    Sketcher.Constraint("Coincident", 2, 2, 3, 1),
    Sketcher.Constraint("Coincident", 3, 2, 0, 1),
    Sketcher.Constraint("Vertical", 0),
    Sketcher.Constraint("Horizontal", 1),
    Sketcher.Constraint("Vertical", 2),
    Sketcher.Constraint("Horizontal", 3),
    Sketcher.Constraint("Coincident", 0, 2, -1, 1),
    Sketcher.Constraint("DistanceY", 0, 2, 0, 1, 39.0),
    Sketcher.Constraint("DistanceX", 1, 1, 1, 2, 56.3),
])
pad22 = doc.addObject("PartDesign::Pad", "Pad021")
body22.addObject(pad22)
pad22.Profile = sketch22
pad22.Length = 2
doc.recompute()

chamfer = doc.addObject("PartDesign::Chamfer", "Chamfer")
body22.addObject(chamfer)
chamfer.Base = (pad22, edges_at(pad22, [(0, 19.5, 7.3), (56.3, 19.5, 7.3)]))
chamfer.Size = 1.5
body23 = doc.addObject("PartDesign::Body", "Body022")

sketch23 = doc.addObject("Sketcher::SketchObject", "Sketch022")
body23.addObject(sketch23)
sketch23.AttachmentSupport = (doc.getObject("XY_Plane022"), [""])
sketch23.MapMode = "FlatFace"
sketch23.AttachmentOffset = App.Placement(Vector(0, 0, 5.8), App.Rotation())
sketch23.addGeometry([
    Part.LineSegment(Vector(3, 64.25, 0), Vector(3, 55, 0)),
    Part.LineSegment(Vector(3, 55, 0), Vector(18, 55, 0)),
    Part.LineSegment(Vector(18, 55, 0), Vector(18, 64.25, 0)),
    Part.LineSegment(Vector(18, 64.25, 0), Vector(3, 64.25, 0)),
], False)
sketch23.addConstraint([
    Sketcher.Constraint("Coincident", 0, 2, 1, 1),
    Sketcher.Constraint("Coincident", 1, 2, 2, 1),
    Sketcher.Constraint("Coincident", 2, 2, 3, 1),
    Sketcher.Constraint("Coincident", 3, 2, 0, 1),
    Sketcher.Constraint("Vertical", 0),
    Sketcher.Constraint("Horizontal", 1),
    Sketcher.Constraint("Vertical", 2),
    Sketcher.Constraint("Horizontal", 3),
    Sketcher.Constraint("DistanceX", 1, 1, 1, 2, 15.0),
    Sketcher.Constraint("DistanceX", -1, 1, 0, 2, 3.0),
    Sketcher.Constraint("DistanceY", -1, 1, 0, 2, 55.0),
    Sketcher.Constraint("DistanceY", 0, 2, 0, 1, 9.25),
])
pad23 = doc.addObject("PartDesign::Pad", "Pad022")
body23.addObject(pad23)
pad23.Profile = sketch23
pad23.Length = 1.5
body24 = doc.addObject("PartDesign::Body", "Body023")

sketch24 = doc.addObject("Sketcher::SketchObject", "Sketch023")
body24.addObject(sketch24)
sketch24.AttachmentSupport = (doc.getObject("XY_Plane023"), [""])
sketch24.MapMode = "FlatFace"
sketch24.AttachmentOffset = App.Placement(Vector(0, 0, 5.8), App.Rotation())
sketch24.addGeometry([
    Part.LineSegment(Vector(2, 64.25, 0), Vector(2, 55, 0)),
    Part.LineSegment(Vector(2, 55, 0), Vector(19, 55, 0)),
    Part.LineSegment(Vector(19, 55, 0), Vector(19, 64.25, 0)),
    Part.LineSegment(Vector(19, 64.25, 0), Vector(2, 64.25, 0)),
], False)
sketch24.addConstraint([
    Sketcher.Constraint("Coincident", 0, 2, 1, 1),
    Sketcher.Constraint("Coincident", 1, 2, 2, 1),
    Sketcher.Constraint("Coincident", 2, 2, 3, 1),
    Sketcher.Constraint("Coincident", 3, 2, 0, 1),
    Sketcher.Constraint("Vertical", 0),
    Sketcher.Constraint("Horizontal", 1),
    Sketcher.Constraint("Vertical", 2),
    Sketcher.Constraint("Horizontal", 3),
    Sketcher.Constraint("DistanceX", 1, 1, 1, 2, 17.0),
    Sketcher.Constraint("DistanceX", -1, 1, 0, 2, 2.0),
    Sketcher.Constraint("DistanceY", -1, 1, 0, 2, 55.0),
    Sketcher.Constraint("DistanceY", 0, 2, 0, 1, 9.25),
])
pad24 = doc.addObject("PartDesign::Pad", "Pad023")
body24.addObject(pad24)
pad24.Profile = sketch24
pad24.Length = 1.5
body25 = doc.addObject("PartDesign::Body", "Body024")

sketch25 = doc.addObject("Sketcher::SketchObject", "Sketch024")
body25.addObject(sketch25)
sketch25.AttachmentSupport = (doc.getObject("XY_Plane024"), [""])
sketch25.MapMode = "FlatFace"
sketch25.addGeometry([
    Part.LineSegment(Vector(51.8, 71.75, 0), Vector(51.8, 61.75, 0)),
    Part.LineSegment(Vector(51.8, 61.75, 0), Vector(61.8, 61.75, 0)),
    Part.LineSegment(Vector(61.8, 61.75, 0), Vector(61.8, 71.75, 0)),
    Part.LineSegment(Vector(61.8, 71.75, 0), Vector(51.8, 71.75, 0)),
], False)
sketch25.addConstraint([
    Sketcher.Constraint("Coincident", 0, 2, 1, 1),
    Sketcher.Constraint("Coincident", 1, 2, 2, 1),
    Sketcher.Constraint("Coincident", 2, 2, 3, 1),
    Sketcher.Constraint("Coincident", 3, 2, 0, 1),
    Sketcher.Constraint("Vertical", 0),
    Sketcher.Constraint("Horizontal", 1),
    Sketcher.Constraint("Vertical", 2),
    Sketcher.Constraint("Horizontal", 3),
    Sketcher.Constraint("Equal", 3, 0),
    Sketcher.Constraint("DistanceX", 1, 1, 1, 2, 10.0),
    Sketcher.Constraint("DistanceX", -1, 1, 0, 2, 51.8),
    Sketcher.Constraint("DistanceY", -1, 1, 0, 2, 61.75),
])
pad25 = doc.addObject("PartDesign::Pad", "Pad024")
body25.addObject(pad25)
pad25.Profile = sketch25
pad25.Length = 10
body26 = doc.addObject("PartDesign::Body", "Body025")

sketch26 = doc.addObject("Sketcher::SketchObject", "Sketch025")
body26.addObject(sketch26)
sketch26.AttachmentSupport = (doc.getObject("XY_Plane025"), [""])
sketch26.MapMode = "FlatFace"
sketch26.AttachmentOffset = App.Placement(Vector(0, 0, 5.3), App.Rotation())
sketch26.addGeometry([
    Part.LineSegment(Vector(0, 64.25, 0), Vector(0, 39, 0)),
    Part.LineSegment(Vector(0, 39, 0), Vector(56.3, 39, 0)),
    Part.LineSegment(Vector(56.3, 39, 0), Vector(56.3, 64.25, 0)),
    Part.LineSegment(Vector(56.3, 64.25, 0), Vector(0, 64.25, 0)),
], False)
sketch26.addConstraint([
    Sketcher.Constraint("Coincident", 0, 2, 1, 1),
    Sketcher.Constraint("Coincident", 1, 2, 2, 1),
    Sketcher.Constraint("Coincident", 2, 2, 3, 1),
    Sketcher.Constraint("Coincident", 3, 2, 0, 1),
    Sketcher.Constraint("Vertical", 0),
    Sketcher.Constraint("Horizontal", 1),
    Sketcher.Constraint("Vertical", 2),
    Sketcher.Constraint("Horizontal", 3),
    Sketcher.Constraint("PointOnObject", 0, 2, -2),
    Sketcher.Constraint("DistanceX", 1, 1, 1, 2, 56.3),
    Sketcher.Constraint("DistanceY", -1, 1, 0, 2, 39.0),
    Sketcher.Constraint("DistanceY", 0, 2, 0, 1, 25.25),
])
pad26 = doc.addObject("PartDesign::Pad", "Pad025")
body26.addObject(pad26)
pad26.Profile = sketch26
pad26.Length = 2
doc.recompute()

boolean3 = doc.addObject("PartDesign::Boolean", "Boolean002")
body26.addObject(boolean3)
boolean3.Type = "Cut"
boolean3.addObjects([body25])
doc.recompute()

boolean4 = doc.addObject("PartDesign::Boolean", "Boolean003")
body26.addObject(boolean4)
boolean4.Type = "Fuse"
boolean4.addObjects([body24])
doc.recompute()

boolean5 = doc.addObject("PartDesign::Boolean", "Boolean004")
body26.addObject(boolean5)
boolean5.Type = "Cut"
boolean5.addObjects([body23])
doc.recompute()

boolean6 = doc.addObject("PartDesign::Boolean", "Boolean005")
body26.addObject(boolean6)
boolean6.Type = "Fuse"
boolean6.addObjects([body22])
doc.recompute()

boolean7 = doc.addObject("PartDesign::Boolean", "Boolean006")
body26.addObject(boolean7)
boolean7.Type = "Cut"
boolean7.addObjects([body21])
doc.recompute()

boolean8 = doc.addObject("PartDesign::Boolean", "Boolean007")
body26.addObject(boolean8)
boolean8.Type = "Cut"
boolean8.addObjects([body20])
body27 = doc.addObject("PartDesign::Body", "Body026")

sketch27 = doc.addObject("Sketcher::SketchObject", "Sketch026")
body27.addObject(sketch27)
sketch27.AttachmentSupport = (doc.getObject("XY_Plane026"), [""])
sketch27.MapMode = "FlatFace"
sketch27.addGeometry([
    Part.LineSegment(Vector(51.3, 36.25, 0), Vector(51.3, 28.25, 0)),
    Part.LineSegment(Vector(51.3, 28.25, 0), Vector(55.3, 28.25, 0)),
    Part.LineSegment(Vector(55.3, 28.25, 0), Vector(55.3, 36.25, 0)),
    Part.LineSegment(Vector(55.3, 36.25, 0), Vector(51.3, 36.25, 0)),
], False)
sketch27.addConstraint([
    Sketcher.Constraint("Coincident", 0, 2, 1, 1),
    Sketcher.Constraint("Coincident", 1, 2, 2, 1),
    Sketcher.Constraint("Coincident", 2, 2, 3, 1),
    Sketcher.Constraint("Coincident", 3, 2, 0, 1),
    Sketcher.Constraint("Vertical", 0),
    Sketcher.Constraint("Horizontal", 1),
    Sketcher.Constraint("Vertical", 2),
    Sketcher.Constraint("Horizontal", 3),
    Sketcher.Constraint("DistanceX", 1, 1, 1, 2, 4.0),
    Sketcher.Constraint("DistanceY", 0, 2, 0, 1, 8.0),
    Sketcher.Constraint("DistanceX", -1, 1, 0, 2, 51.3),
    Sketcher.Constraint("DistanceY", -1, 1, 0, 2, 28.25),
])
pad27 = doc.addObject("PartDesign::Pad", "Pad026")
body27.addObject(pad27)
pad27.Profile = sketch27
pad27.Length = 5.3
doc.recompute()

boolean9 = doc.addObject("PartDesign::Boolean", "Boolean008")
body27.addObject(boolean9)
boolean9.Type = "Fuse"
boolean9.addObjects([body19])
doc.recompute()

boolean10 = doc.addObject("PartDesign::Boolean", "Boolean009")
body27.addObject(boolean10)
boolean10.Type = "Fuse"
boolean10.addObjects([body26])
doc.recompute()

boolean11 = doc.addObject("PartDesign::Boolean", "Boolean010")
body27.addObject(boolean11)
boolean11.Type = "Cut"
boolean11.addObjects([body16])

doc.recompute()
